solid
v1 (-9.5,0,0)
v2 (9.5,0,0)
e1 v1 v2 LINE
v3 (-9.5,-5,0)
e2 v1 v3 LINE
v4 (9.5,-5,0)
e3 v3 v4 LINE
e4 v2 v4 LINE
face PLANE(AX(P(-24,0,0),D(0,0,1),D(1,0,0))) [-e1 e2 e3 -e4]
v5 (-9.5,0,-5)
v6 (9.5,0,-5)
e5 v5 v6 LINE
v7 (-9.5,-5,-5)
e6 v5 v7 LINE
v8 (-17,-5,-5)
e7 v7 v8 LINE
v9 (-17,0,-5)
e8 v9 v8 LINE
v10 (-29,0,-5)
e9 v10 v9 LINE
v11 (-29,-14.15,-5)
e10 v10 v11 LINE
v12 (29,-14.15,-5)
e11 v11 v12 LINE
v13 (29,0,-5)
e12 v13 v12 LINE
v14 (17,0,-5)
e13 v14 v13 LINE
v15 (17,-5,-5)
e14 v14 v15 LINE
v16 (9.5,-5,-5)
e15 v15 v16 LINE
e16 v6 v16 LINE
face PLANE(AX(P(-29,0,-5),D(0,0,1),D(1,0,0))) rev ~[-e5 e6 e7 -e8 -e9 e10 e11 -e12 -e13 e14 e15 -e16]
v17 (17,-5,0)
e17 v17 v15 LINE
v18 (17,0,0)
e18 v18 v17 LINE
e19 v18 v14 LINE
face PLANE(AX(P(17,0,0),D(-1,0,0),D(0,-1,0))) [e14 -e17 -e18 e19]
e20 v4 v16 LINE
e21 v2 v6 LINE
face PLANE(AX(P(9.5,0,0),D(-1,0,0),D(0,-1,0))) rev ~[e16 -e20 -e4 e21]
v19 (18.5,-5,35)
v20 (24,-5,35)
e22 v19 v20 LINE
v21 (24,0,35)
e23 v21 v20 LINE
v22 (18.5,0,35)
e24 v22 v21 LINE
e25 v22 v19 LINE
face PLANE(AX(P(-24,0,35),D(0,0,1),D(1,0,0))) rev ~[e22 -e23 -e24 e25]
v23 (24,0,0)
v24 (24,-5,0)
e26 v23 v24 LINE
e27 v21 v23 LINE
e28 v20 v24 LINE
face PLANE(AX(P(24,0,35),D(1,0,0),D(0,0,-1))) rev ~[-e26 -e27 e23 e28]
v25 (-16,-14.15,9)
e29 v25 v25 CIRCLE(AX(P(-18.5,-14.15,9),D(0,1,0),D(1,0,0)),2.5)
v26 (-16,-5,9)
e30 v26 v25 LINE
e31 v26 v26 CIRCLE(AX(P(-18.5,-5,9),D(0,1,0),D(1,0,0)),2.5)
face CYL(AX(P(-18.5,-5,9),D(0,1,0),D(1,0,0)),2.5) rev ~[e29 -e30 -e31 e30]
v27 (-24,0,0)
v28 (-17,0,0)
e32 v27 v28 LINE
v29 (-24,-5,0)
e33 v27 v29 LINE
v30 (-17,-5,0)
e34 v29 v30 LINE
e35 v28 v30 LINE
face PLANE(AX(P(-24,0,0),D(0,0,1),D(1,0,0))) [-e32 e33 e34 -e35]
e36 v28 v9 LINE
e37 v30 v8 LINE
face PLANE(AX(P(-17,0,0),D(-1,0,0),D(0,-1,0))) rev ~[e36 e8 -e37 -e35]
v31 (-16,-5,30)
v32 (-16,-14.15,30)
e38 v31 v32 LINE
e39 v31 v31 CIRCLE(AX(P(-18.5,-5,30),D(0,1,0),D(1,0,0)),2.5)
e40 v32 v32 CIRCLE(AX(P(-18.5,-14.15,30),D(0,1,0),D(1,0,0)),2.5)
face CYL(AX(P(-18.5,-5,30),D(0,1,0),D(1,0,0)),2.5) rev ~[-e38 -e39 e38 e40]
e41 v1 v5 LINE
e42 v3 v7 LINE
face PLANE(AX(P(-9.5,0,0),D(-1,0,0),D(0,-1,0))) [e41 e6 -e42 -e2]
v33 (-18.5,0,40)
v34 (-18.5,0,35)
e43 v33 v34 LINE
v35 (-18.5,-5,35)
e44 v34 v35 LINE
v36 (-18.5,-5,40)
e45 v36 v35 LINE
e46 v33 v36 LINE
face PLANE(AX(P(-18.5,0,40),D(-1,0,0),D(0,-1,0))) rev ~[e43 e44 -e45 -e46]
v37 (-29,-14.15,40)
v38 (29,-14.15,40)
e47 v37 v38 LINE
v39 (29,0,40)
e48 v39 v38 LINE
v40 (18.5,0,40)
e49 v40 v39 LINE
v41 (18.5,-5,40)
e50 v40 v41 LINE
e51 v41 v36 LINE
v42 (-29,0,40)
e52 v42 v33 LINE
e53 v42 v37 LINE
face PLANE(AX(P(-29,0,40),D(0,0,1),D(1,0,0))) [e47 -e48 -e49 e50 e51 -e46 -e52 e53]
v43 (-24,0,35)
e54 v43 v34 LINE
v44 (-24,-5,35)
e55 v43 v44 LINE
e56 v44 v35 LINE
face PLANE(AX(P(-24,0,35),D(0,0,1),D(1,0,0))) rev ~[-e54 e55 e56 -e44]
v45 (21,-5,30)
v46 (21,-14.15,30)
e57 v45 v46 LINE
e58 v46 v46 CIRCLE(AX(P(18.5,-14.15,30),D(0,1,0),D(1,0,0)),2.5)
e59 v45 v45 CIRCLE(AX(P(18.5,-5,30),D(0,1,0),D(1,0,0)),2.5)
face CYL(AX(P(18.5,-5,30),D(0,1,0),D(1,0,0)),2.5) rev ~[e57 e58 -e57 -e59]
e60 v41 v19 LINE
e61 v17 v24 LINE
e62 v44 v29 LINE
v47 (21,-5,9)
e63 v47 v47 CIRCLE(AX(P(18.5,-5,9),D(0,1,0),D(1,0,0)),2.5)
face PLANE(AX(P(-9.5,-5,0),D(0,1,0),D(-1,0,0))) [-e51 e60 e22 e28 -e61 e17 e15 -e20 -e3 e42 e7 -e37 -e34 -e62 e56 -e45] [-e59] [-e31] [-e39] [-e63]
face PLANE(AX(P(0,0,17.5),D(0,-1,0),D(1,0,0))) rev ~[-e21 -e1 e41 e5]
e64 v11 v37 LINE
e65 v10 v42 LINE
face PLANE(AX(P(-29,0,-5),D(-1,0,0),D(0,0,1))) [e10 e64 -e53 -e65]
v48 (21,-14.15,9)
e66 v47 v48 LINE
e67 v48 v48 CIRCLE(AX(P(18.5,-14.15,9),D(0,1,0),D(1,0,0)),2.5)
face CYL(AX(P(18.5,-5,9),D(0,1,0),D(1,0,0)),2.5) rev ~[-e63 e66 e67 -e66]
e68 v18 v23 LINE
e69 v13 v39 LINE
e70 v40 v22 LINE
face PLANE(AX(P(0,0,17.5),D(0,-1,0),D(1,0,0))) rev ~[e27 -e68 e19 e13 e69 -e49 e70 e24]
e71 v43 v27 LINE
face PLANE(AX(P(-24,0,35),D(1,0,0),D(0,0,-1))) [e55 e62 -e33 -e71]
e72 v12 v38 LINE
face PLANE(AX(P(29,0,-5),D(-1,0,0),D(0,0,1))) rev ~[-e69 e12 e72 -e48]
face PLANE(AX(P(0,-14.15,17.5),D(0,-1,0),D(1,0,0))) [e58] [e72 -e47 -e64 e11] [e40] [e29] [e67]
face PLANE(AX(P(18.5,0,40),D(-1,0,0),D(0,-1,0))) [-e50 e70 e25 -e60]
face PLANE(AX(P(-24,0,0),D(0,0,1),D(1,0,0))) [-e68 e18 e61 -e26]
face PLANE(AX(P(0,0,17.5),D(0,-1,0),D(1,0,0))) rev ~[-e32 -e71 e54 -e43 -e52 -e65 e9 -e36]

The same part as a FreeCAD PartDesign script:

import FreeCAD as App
import Part
import Sketcher
Q = App.Units.Quantity

doc = App.newDocument("Part")
params = doc.addObject("Spreadsheet::Sheet", "Params")
for row, (alias, value) in enumerate([
    ("sketch1_width", "58 mm"),
    ("sketch1_height", "45 mm"),
    ("pad1_length", "14.15 mm"),
    ("sketch2_width", "48 mm"),
    ("sketch2_height", "35 mm"),
    ("pocket1_length", "5 mm"),
    ("sketch3_diameter", "5 mm"),
    ("pocket2_length", "10 mm"),
    ("sketch4_width", "37 mm"),
    ("sketch4_height", "5 mm"),
    ("pocket3_length", "5 mm"),
    ("sketch5_height", "5 mm"),
    ("sketch5_width", "7.5 mm"),
    ("pocket4_length", "5 mm"),
], start=1):
    params.set(f"A{row}", alias)
    params.set(f"B{row}", "=" + value)
    params.setAlias(f"B{row}", alias)

body = doc.addObject("PartDesign::Body", "Body")

# Sketch on XZ plane
sketch1 = doc.addObject("Sketcher::SketchObject", "Sketch")
body.addObject(sketch1)
sketch1.AttachmentSupport = (doc.XZ_Plane, [""])
sketch1.MapMode = "FlatFace"
sketch1.addGeometry(Part.LineSegment(App.Vector(-29, 40, 0), App.Vector(-29, -5, 0)), False)
sketch1.addGeometry(Part.LineSegment(App.Vector(-29, -5, 0), App.Vector(29, -5, 0)), False)
sketch1.addGeometry(Part.LineSegment(App.Vector(29, -5, 0), App.Vector(29, 40, 0)), False)
sketch1.addGeometry(Part.LineSegment(App.Vector(29, 40, 0), App.Vector(-29, 40, 0)), False)
sketch1.addConstraint(Sketcher.Constraint("Coincident", 0, 2, 1, 1))
sketch1.addConstraint(Sketcher.Constraint("Coincident", 1, 2, 2, 1))
sketch1.addConstraint(Sketcher.Constraint("Coincident", 2, 2, 3, 1))
sketch1.addConstraint(Sketcher.Constraint("Coincident", 3, 2, 0, 1))
sketch1.addConstraint(Sketcher.Constraint("Vertical", 0))
sketch1.addConstraint(Sketcher.Constraint("Horizontal", 1))
sketch1.addConstraint(Sketcher.Constraint("Vertical", 2))
sketch1.addConstraint(Sketcher.Constraint("Horizontal", 3))
sketch1.addConstraint(Sketcher.Constraint("DistanceX", 1, 1, 1, 2, Q("58 mm")))
sketch1.addConstraint(Sketcher.Constraint("DistanceY", 0, 2, 0, 1, Q("45 mm")))
sketch1.addConstraint(Sketcher.Constraint("DistanceX", 0, 2, -1, 1, Q("29 mm")))
sketch1.addConstraint(Sketcher.Constraint("DistanceY", 0, 2, -1, 1, Q("5 mm")))
sketch1.setExpression("Constraints[8]", "Params.sketch1_width")
sketch1.setExpression("Constraints[9]", "Params.sketch1_height")
pad1 = doc.addObject("PartDesign::Pad", "Pad")
body.addObject(pad1)
pad1.Profile = sketch1
pad1.setExpression("Length", "Params.pad1_length")

# Sketch on XZ plane
sketch2 = doc.addObject("Sketcher::SketchObject", "Sketch001")
body.addObject(sketch2)
sketch2.AttachmentSupport = (doc.XZ_Plane, [""])
sketch2.MapMode = "FlatFace"
sketch2.addGeometry(Part.LineSegment(App.Vector(-24, 0, 0), App.Vector(-24, 35, 0)), False)
sketch2.addGeometry(Part.LineSegment(App.Vector(-24, 35, 0), App.Vector(24, 35, 0)), False)
sketch2.addGeometry(Part.LineSegment(App.Vector(24, 35, 0), App.Vector(24, 0, 0)), False)
sketch2.addGeometry(Part.LineSegment(App.Vector(24, 0, 0), App.Vector(-24, 0, 0)), False)
sketch2.addConstraint(Sketcher.Constraint("Coincident", 0, 2, 1, 1))
sketch2.addConstraint(Sketcher.Constraint("Coincident", 1, 2, 2, 1))
sketch2.addConstraint(Sketcher.Constraint("Coincident", 2, 2, 3, 1))
sketch2.addConstraint(Sketcher.Constraint("Coincident", 3, 2, 0, 1))
sketch2.addConstraint(Sketcher.Constraint("Vertical", 0))
sketch2.addConstraint(Sketcher.Constraint("Horizontal", 1))
sketch2.addConstraint(Sketcher.Constraint("Vertical", 2))
sketch2.addConstraint(Sketcher.Constraint("Horizontal", 3))
sketch2.addConstraint(Sketcher.Constraint("Symmetric", 2, 2, 3, 2, -1, 1))
sketch2.addConstraint(Sketcher.Constraint("DistanceX", 1, 1, 1, 2, Q("48 mm")))
sketch2.addConstraint(Sketcher.Constraint("DistanceY", 0, 1, 0, 2, Q("35 mm")))
sketch2.setExpression("Constraints[9]", "Params.sketch2_width")
sketch2.setExpression("Constraints[10]", "Params.sketch2_height")
pocket1 = doc.addObject("PartDesign::Pocket", "Pocket")
body.addObject(pocket1)
pocket1.Profile = sketch2
pocket1.setExpression("Length", "Params.pocket1_length")
pocket1.Reversed = True

# Sketch on XZ plane
sketch3 = doc.addObject("Sketcher::SketchObject", "Sketch002")
body.addObject(sketch3)
sketch3.AttachmentSupport = (doc.XZ_Plane, [""])
sketch3.MapMode = "FlatFace"
sketch3.AttachmentOffset = App.Placement(App.Vector(0, 0, 5), App.Rotation())
sketch3.addGeometry(Part.Circle(App.Vector(-18.5, 9, 0), App.Vector(0, 0, 1), 2.5), False)
sketch3.addGeometry(Part.Circle(App.Vector(18.5, 9, 0), App.Vector(0, 0, 1), 2.5), False)
sketch3.addGeometry(Part.Circle(App.Vector(-18.5, 30, 0), App.Vector(0, 0, 1), 2.5), False)
sketch3.addGeometry(Part.Circle(App.Vector(18.5, 30, 0), App.Vector(0, 0, 1), 2.5), False)
sketch3.addConstraint(Sketcher.Constraint("Equal", 0, 1))
sketch3.addConstraint(Sketcher.Constraint("Equal", 1, 2))
sketch3.addConstraint(Sketcher.Constraint("Equal", 2, 3))
sketch3.addConstraint(Sketcher.Constraint("Symmetric", 0, 3, 1, 3, -2))
sketch3.addConstraint(Sketcher.Constraint("Symmetric", 2, 3, 3, 3, -2))
sketch3.addConstraint(Sketcher.Constraint("Vertical", 0, 3, 2, 3))
sketch3.addConstraint(Sketcher.Constraint("Diameter", 0, Q("5 mm")))
sketch3.addConstraint(Sketcher.Constraint("DistanceY", -1, 1, 0, 3, Q("9 mm")))
sketch3.addConstraint(Sketcher.Constraint("DistanceY", -1, 1, 2, 3, Q("30 mm")))
sketch3.addConstraint(Sketcher.Constraint("DistanceX", 0, 3, 1, 3, Q("37 mm")))
sketch3.setExpression("Constraints[6]", "Params.sketch3_diameter")
pocket2 = doc.addObject("PartDesign::Pocket", "Pocket001")
body.addObject(pocket2)
pocket2.Profile = sketch3
pocket2.setExpression("Length", "Params.pocket2_length")
pocket2.Reversed = True

# Sketch on XY plane
sketch4 = doc.addObject("Sketcher::SketchObject", "Sketch003")
body.addObject(sketch4)
sketch4.AttachmentSupport = (doc.XY_Plane, [""])
sketch4.MapMode = "FlatFace"
sketch4.AttachmentOffset = App.Placement(App.Vector(0, 0, 40), App.Rotation())
sketch4.addGeometry(Part.LineSegment(App.Vector(18, -5, 0), App.Vector(18, 0, 0)), False)
sketch4.addGeometry(Part.LineSegment(App.Vector(18, 0, 0), App.Vector(-18, 0, 0)), False)
sketch4.addGeometry(Part.LineSegment(App.Vector(-18, 0, 0), App.Vector(-18, -5, 0)), False)
sketch4.addGeometry(Part.LineSegment(App.Vector(-18, -5, 0), App.Vector(18, -5, 0)), False)
sketch4.addConstraint(Sketcher.Constraint("Coincident", 0, 2, 1, 1))
sketch4.addConstraint(Sketcher.Constraint("Coincident", 1, 2, 2, 1))
sketch4.addConstraint(Sketcher.Constraint("Coincident", 2, 2, 3, 1))
sketch4.addConstraint(Sketcher.Constraint("Coincident", 3, 2, 0, 1))
sketch4.addConstraint(Sketcher.Constraint("Vertical", 0))
sketch4.addConstraint(Sketcher.Constraint("Horizontal", 1))
sketch4.addConstraint(Sketcher.Constraint("Vertical", 2))
sketch4.addConstraint(Sketcher.Constraint("Horizontal", 3))
sketch4.addConstraint(Sketcher.Constraint("Symmetric", 0, 2, 1, 2, -1, 1))
sketch4.addConstraint(Sketcher.Constraint("DistanceX", 1, 2, 1, 1, Q("37 mm")))
sketch4.addConstraint(Sketcher.Constraint("DistanceY", 0, 1, 0, 2, Q("5 mm")))
sketch4.setExpression("Constraints[9]", "Params.sketch4_width")
sketch4.setExpression("Constraints[10]", "Params.sketch4_height")
pocket3 = doc.addObject("PartDesign::Pocket", "Pocket002")
body.addObject(pocket3)
pocket3.Profile = sketch4
pocket3.setExpression("Length", "Params.pocket3_length")

# Sketch on XY plane
sketch5 = doc.addObject("Sketcher::SketchObject", "Sketch004")
body.addObject(sketch5)
sketch5.AttachmentSupport = (doc.XY_Plane, [""])
sketch5.MapMode = "FlatFace"
sketch5.addGeometry(Part.LineSegment(App.Vector(-10, -5, 0), App.Vector(-10, 0, 0)), False)
sketch5.addGeometry(Part.LineSegment(App.Vector(-10, 0, 0), App.Vector(-17, 0, 0)), False)
sketch5.addGeometry(Part.LineSegment(App.Vector(-17, 0, 0), App.Vector(-17, -5, 0)), False)
sketch5.addGeometry(Part.LineSegment(App.Vector(-17, -5, 0), App.Vector(-10, -5, 0)), False)
sketch5.addGeometry(Part.LineSegment(App.Vector(17, -5, 0), App.Vector(17, 0, 0)), False)
sketch5.addGeometry(Part.LineSegment(App.Vector(17, 0, 0), App.Vector(10, 0, 0)), False)
sketch5.addGeometry(Part.LineSegment(App.Vector(10, 0, 0), App.Vector(10, -5, 0)), False)
sketch5.addGeometry(Part.LineSegment(App.Vector(10, -5, 0), App.Vector(17, -5, 0)), False)
sketch5.addConstraint(Sketcher.Constraint("Coincident", 0, 2, 1, 1))
sketch5.addConstraint(Sketcher.Constraint("Coincident", 1, 2, 2, 1))
sketch5.addConstraint(Sketcher.Constraint("Coincident", 2, 2, 3, 1))
sketch5.addConstraint(Sketcher.Constraint("Coincident", 3, 2, 0, 1))
sketch5.addConstraint(Sketcher.Constraint("Coincident", 4, 2, 5, 1))
sketch5.addConstraint(Sketcher.Constraint("Coincident", 5, 2, 6, 1))
sketch5.addConstraint(Sketcher.Constraint("Coincident", 6, 2, 7, 1))
sketch5.addConstraint(Sketcher.Constraint("Coincident", 7, 2, 4, 1))
sketch5.addConstraint(Sketcher.Constraint("Vertical", 0))
sketch5.addConstraint(Sketcher.Constraint("Horizontal", 1))
sketch5.addConstraint(Sketcher.Constraint("Vertical", 2))
sketch5.addConstraint(Sketcher.Constraint("Horizontal", 3))
sketch5.addConstraint(Sketcher.Constraint("Vertical", 4))
sketch5.addConstraint(Sketcher.Constraint("Horizontal", 5))
sketch5.addConstraint(Sketcher.Constraint("Vertical", 6))
sketch5.addConstraint(Sketcher.Constraint("Horizontal", 7))
sketch5.addConstraint(Sketcher.Constraint("Symmetric", 1, 2, 4, 2, -1, 1))
sketch5.addConstraint(Sketcher.Constraint("Symmetric", 0, 2, 5, 2, -2))
sketch5.addConstraint(Sketcher.Constraint("Horizontal", 3, 2, 6, 2))
sketch5.addConstraint(Sketcher.Constraint("DistanceY", 0, 1, 0, 2, Q("5 mm")))
sketch5.addConstraint(Sketcher.Constraint("DistanceX", 1, 2, 1, 1, Q("7.5 mm")))
sketch5.addConstraint(Sketcher.Constraint("DistanceX", 1, 2, -1, 1, Q("17 mm")))
sketch5.setExpression("Constraints[19]", "Params.sketch5_height")
sketch5.setExpression("Constraints[20]", "Params.sketch5_width")
pocket4 = doc.addObject("PartDesign::Pocket", "Pocket003")
body.addObject(pocket4)
pocket4.Profile = sketch5
pocket4.setExpression("Length", "Params.pocket4_length")

doc.recompute()
